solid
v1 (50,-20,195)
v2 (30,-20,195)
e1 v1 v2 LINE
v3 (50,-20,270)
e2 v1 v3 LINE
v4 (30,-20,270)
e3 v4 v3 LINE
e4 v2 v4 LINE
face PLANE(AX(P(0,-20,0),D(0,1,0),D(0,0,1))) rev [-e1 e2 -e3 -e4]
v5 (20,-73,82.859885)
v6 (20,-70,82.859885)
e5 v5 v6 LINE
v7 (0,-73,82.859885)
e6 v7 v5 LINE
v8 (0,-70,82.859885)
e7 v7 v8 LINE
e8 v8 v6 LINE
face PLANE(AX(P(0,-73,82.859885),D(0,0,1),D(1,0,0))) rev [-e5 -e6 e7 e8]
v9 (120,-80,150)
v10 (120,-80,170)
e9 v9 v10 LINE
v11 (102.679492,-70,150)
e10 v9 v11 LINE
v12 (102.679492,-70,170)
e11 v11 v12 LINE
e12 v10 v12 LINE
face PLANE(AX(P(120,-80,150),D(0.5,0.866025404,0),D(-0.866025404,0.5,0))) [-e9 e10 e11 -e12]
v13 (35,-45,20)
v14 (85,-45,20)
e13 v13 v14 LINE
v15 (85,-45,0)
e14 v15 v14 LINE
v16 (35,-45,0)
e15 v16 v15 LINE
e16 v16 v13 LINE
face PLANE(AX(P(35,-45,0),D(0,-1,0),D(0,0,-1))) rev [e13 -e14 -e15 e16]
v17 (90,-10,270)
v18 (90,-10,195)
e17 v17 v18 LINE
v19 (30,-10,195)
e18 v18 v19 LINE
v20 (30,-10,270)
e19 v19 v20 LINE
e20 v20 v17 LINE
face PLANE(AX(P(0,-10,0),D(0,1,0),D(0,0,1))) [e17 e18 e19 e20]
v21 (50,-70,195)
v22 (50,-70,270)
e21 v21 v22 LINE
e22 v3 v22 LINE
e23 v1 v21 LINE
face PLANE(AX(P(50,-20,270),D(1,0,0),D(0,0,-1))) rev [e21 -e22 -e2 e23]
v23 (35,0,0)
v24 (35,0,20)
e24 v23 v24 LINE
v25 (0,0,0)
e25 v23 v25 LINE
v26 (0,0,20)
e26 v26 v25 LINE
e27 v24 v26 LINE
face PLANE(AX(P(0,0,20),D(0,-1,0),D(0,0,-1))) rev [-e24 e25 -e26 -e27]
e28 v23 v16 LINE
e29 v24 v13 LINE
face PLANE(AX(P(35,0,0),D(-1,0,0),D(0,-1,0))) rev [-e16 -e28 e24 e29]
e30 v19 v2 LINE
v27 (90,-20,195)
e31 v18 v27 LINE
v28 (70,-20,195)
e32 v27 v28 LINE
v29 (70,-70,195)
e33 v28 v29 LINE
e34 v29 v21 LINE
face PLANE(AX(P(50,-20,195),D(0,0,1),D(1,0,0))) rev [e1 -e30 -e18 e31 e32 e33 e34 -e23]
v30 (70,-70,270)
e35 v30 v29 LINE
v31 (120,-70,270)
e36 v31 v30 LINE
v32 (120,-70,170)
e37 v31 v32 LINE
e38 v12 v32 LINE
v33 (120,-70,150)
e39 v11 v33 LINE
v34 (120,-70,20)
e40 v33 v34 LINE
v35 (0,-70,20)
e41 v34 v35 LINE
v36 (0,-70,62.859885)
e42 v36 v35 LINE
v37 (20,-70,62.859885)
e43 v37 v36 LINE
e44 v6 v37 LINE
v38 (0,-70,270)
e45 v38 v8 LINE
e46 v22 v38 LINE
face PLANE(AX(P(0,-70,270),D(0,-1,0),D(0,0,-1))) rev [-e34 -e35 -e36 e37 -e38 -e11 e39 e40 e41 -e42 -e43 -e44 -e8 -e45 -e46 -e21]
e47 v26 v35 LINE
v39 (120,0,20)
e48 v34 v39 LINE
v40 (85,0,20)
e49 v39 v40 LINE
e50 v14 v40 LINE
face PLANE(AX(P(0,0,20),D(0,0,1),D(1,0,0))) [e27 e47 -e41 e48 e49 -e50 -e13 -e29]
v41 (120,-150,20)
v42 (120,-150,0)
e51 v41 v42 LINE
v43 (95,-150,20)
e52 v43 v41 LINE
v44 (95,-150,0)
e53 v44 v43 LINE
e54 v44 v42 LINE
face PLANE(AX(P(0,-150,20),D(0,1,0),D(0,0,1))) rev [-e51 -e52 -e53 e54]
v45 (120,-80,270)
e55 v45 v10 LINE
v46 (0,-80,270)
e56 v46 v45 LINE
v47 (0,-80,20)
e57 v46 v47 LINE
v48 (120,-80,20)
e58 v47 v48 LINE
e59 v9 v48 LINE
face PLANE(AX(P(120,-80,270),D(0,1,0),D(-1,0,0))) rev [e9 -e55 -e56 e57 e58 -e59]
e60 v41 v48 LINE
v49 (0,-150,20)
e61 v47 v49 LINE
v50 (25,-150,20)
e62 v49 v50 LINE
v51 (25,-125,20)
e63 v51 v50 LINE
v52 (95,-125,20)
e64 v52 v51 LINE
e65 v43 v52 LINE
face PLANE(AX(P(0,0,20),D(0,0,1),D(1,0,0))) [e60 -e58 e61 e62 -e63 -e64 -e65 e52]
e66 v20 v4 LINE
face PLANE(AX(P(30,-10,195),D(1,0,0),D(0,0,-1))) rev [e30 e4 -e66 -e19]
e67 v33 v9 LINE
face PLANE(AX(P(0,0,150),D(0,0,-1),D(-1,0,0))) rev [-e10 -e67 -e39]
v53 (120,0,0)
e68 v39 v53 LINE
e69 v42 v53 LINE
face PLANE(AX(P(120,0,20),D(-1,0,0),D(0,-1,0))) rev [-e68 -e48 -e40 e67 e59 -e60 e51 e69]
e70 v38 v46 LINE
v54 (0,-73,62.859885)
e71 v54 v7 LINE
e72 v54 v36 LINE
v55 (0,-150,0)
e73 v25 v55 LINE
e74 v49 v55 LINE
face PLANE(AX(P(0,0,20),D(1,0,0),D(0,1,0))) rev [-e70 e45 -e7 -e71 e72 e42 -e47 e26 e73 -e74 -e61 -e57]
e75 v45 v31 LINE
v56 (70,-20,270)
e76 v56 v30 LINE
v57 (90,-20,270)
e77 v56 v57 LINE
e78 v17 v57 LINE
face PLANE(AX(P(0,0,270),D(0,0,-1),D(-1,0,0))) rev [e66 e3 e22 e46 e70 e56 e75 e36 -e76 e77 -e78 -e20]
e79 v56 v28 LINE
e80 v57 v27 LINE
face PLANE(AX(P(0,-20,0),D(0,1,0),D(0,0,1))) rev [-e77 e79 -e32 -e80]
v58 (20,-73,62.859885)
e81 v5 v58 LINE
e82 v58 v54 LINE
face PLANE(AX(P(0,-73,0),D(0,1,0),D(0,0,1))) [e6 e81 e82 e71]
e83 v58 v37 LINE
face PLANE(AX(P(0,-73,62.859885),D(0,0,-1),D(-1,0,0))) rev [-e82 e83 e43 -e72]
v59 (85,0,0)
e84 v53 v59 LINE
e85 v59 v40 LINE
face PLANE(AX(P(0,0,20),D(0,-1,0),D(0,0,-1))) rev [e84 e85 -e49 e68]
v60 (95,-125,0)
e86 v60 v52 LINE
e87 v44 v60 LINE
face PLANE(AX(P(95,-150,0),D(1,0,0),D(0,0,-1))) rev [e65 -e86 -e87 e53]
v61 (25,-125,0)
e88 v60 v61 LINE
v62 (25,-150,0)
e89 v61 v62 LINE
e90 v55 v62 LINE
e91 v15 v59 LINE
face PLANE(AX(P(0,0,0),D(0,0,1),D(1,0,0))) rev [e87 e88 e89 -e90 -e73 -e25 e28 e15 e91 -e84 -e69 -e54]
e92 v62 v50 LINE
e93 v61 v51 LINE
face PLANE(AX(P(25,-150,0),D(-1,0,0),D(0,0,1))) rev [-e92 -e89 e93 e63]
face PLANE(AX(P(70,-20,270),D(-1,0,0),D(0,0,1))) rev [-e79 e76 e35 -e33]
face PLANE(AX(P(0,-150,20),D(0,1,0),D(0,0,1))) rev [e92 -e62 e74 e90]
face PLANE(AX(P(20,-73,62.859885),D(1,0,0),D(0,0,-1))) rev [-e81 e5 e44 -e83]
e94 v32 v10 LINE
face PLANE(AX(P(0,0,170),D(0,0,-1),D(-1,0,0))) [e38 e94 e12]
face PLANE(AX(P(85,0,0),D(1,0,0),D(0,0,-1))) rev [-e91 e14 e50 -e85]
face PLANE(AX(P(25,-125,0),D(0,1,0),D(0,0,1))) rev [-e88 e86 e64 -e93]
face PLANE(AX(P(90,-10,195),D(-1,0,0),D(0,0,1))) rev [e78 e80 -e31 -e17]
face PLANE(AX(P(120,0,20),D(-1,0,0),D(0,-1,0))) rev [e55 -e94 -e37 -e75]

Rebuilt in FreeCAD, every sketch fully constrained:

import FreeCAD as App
import Part
import Sketcher
Q = App.Units.Quantity

doc = App.newDocument("Part")
body = doc.addObject("PartDesign::Body", "Body")

sketch1 = body.newObject("Sketcher::SketchObject", "Sketch")
sketch1.AttachmentSupport = (doc.getObject("XY_Plane"), [""])
sketch1.MapMode = "FlatFace"
sketch1.addGeometry(Part.LineSegment(App.Vector(0, 0, 0), App.Vector(0, -150, 0)), False)
sketch1.addGeometry(Part.LineSegment(App.Vector(0, -150, 0), App.Vector(120, -150, 0)), False)
sketch1.addGeometry(Part.LineSegment(App.Vector(120, -150, 0), App.Vector(120, 0, 0)), False)
sketch1.addGeometry(Part.LineSegment(App.Vector(120, 0, 0), App.Vector(0, 0, 0)), False)
sketch1.addConstraint(Sketcher.Constraint("Coincident", 0, 2, 1, 1))
sketch1.addConstraint(Sketcher.Constraint("Coincident", 1, 2, 2, 1))
sketch1.addConstraint(Sketcher.Constraint("Coincident", 2, 2, 3, 1))
sketch1.addConstraint(Sketcher.Constraint("Coincident", 3, 2, 0, 1))
sketch1.addConstraint(Sketcher.Constraint("Vertical", 0))
sketch1.addConstraint(Sketcher.Constraint("Horizontal", 1))
sketch1.addConstraint(Sketcher.Constraint("Vertical", 2))
sketch1.addConstraint(Sketcher.Constraint("Horizontal", 3))
sketch1.addConstraint(Sketcher.Constraint("Coincident", 3, 2, -1, 1))
sketch1.addConstraint(Sketcher.Constraint("DistanceX", 1, 1, 1, 2, Q("120 mm")))
sketch1.addConstraint(Sketcher.Constraint("DistanceY", 0, 2, 0, 1, Q("150 mm")))
pad1 = body.newObject("PartDesign::Pad", "Pad")
pad1.Profile = sketch1
pad1.Length = 20

sketch2 = body.newObject("Sketcher::SketchObject", "Sketch001")
sketch2.AttachmentSupport = (doc.getObject("XY_Plane"), [""])
sketch2.MapMode = "FlatFace"
sketch2.AttachmentOffset = App.Placement(App.Vector(0, 0, 20), App.Rotation())
sketch2.addGeometry(Part.LineSegment(App.Vector(0, -70, 0), App.Vector(0, -80, 0)), False)
sketch2.addGeometry(Part.LineSegment(App.Vector(0, -80, 0), App.Vector(120, -80, 0)), False)
sketch2.addGeometry(Part.LineSegment(App.Vector(120, -80, 0), App.Vector(120, -70, 0)), False)
sketch2.addGeometry(Part.LineSegment(App.Vector(120, -70, 0), App.Vector(0, -70, 0)), False)
sketch2.addConstraint(Sketcher.Constraint("Coincident", 0, 2, 1, 1))
sketch2.addConstraint(Sketcher.Constraint("Coincident", 1, 2, 2, 1))
sketch2.addConstraint(Sketcher.Constraint("Coincident", 2, 2, 3, 1))
sketch2.addConstraint(Sketcher.Constraint("Coincident", 3, 2, 0, 1))
sketch2.addConstraint(Sketcher.Constraint("Vertical", 0))
sketch2.addConstraint(Sketcher.Constraint("Horizontal", 1))
sketch2.addConstraint(Sketcher.Constraint("Vertical", 2))
sketch2.addConstraint(Sketcher.Constraint("Horizontal", 3))
sketch2.addConstraint(Sketcher.Constraint("PointOnObject", 0, 2, -2))
sketch2.addConstraint(Sketcher.Constraint("DistanceX", 1, 1, 1, 2, Q("120 mm")))
sketch2.addConstraint(Sketcher.Constraint("DistanceY", 0, 2, 0, 1, Q("10 mm")))
sketch2.addConstraint(Sketcher.Constraint("DistanceY", 0, 2, -1, 1, Q("80 mm")))
pad2 = body.newObject("PartDesign::Pad", "Pad001")
pad2.Profile = sketch2
pad2.Length = 250

sketch3 = body.newObject("Sketcher::SketchObject", "Sketch002")
sketch3.AttachmentSupport = (doc.getObject("XY_Plane"), [""])
sketch3.MapMode = "FlatFace"
sketch3.AttachmentOffset = App.Placement(App.Vector(0, 0, 20), App.Rotation())
sketch3.addGeometry(Part.LineSegment(App.Vector(35, 0, 0), App.Vector(35, -45, 0)), False)
sketch3.addGeometry(Part.LineSegment(App.Vector(35, -45, 0), App.Vector(85, -45, 0)), False)
sketch3.addGeometry(Part.LineSegment(App.Vector(85, -45, 0), App.Vector(85, 0, 0)), False)
sketch3.addGeometry(Part.LineSegment(App.Vector(85, 0, 0), App.Vector(35, 0, 0)), False)
sketch3.addConstraint(Sketcher.Constraint("Coincident", 0, 2, 1, 1))
sketch3.addConstraint(Sketcher.Constraint("Coincident", 1, 2, 2, 1))
sketch3.addConstraint(Sketcher.Constraint("Coincident", 2, 2, 3, 1))
sketch3.addConstraint(Sketcher.Constraint("Coincident", 3, 2, 0, 1))
sketch3.addConstraint(Sketcher.Constraint("Vertical", 0))
sketch3.addConstraint(Sketcher.Constraint("Horizontal", 1))
sketch3.addConstraint(Sketcher.Constraint("Vertical", 2))
sketch3.addConstraint(Sketcher.Constraint("Horizontal", 3))
sketch3.addConstraint(Sketcher.Constraint("PointOnObject", 2, 2, -1))
sketch3.addConstraint(Sketcher.Constraint("DistanceX", 1, 1, 1, 2, Q("50 mm")))
sketch3.addConstraint(Sketcher.Constraint("DistanceY", 0, 2, 0, 1, Q("45 mm")))
sketch3.addConstraint(Sketcher.Constraint("DistanceX", -1, 1, 0, 2, Q("35 mm")))
pocket1 = body.newObject("PartDesign::Pocket", "Pocket")
pocket1.Profile = sketch3
pocket1.Type = "ThroughAll"

sketch4 = body.newObject("Sketcher::SketchObject", "Sketch003")
sketch4.AttachmentSupport = (doc.getObject("XY_Plane"), [""])
sketch4.MapMode = "FlatFace"
sketch4.AttachmentOffset = App.Placement(App.Vector(0, 0, 20), App.Rotation())
sketch4.addGeometry(Part.LineSegment(App.Vector(25, -125, 0), App.Vector(25, -150, 0)), False)
sketch4.addGeometry(Part.LineSegment(App.Vector(25, -150, 0), App.Vector(95, -150, 0)), False)
sketch4.addGeometry(Part.LineSegment(App.Vector(95, -150, 0), App.Vector(95, -125, 0)), False)
sketch4.addGeometry(Part.LineSegment(App.Vector(95, -125, 0), App.Vector(25, -125, 0)), False)
sketch4.addConstraint(Sketcher.Constraint("Coincident", 0, 2, 1, 1))
sketch4.addConstraint(Sketcher.Constraint("Coincident", 1, 2, 2, 1))
sketch4.addConstraint(Sketcher.Constraint("Coincident", 2, 2, 3, 1))
sketch4.addConstraint(Sketcher.Constraint("Coincident", 3, 2, 0, 1))
sketch4.addConstraint(Sketcher.Constraint("Vertical", 0))
sketch4.addConstraint(Sketcher.Constraint("Horizontal", 1))
sketch4.addConstraint(Sketcher.Constraint("Vertical", 2))
sketch4.addConstraint(Sketcher.Constraint("Horizontal", 3))
sketch4.addConstraint(Sketcher.Constraint("DistanceX", 1, 1, 1, 2, Q("70 mm")))
sketch4.addConstraint(Sketcher.Constraint("DistanceY", 0, 2, 0, 1, Q("25 mm")))
sketch4.addConstraint(Sketcher.Constraint("DistanceX", -1, 1, 0, 2, Q("25 mm")))
sketch4.addConstraint(Sketcher.Constraint("DistanceY", 0, 2, -1, 1, Q("150 mm")))
pocket2 = body.newObject("PartDesign::Pocket", "Pocket001")
pocket2.Profile = sketch4
pocket2.Type = "ThroughAll"

sketch5 = body.newObject("Sketcher::SketchObject", "Sketch004")
sketch5.AttachmentSupport = (doc.getObject("XZ_Plane"), [""])
sketch5.MapMode = "FlatFace"
sketch5.AttachmentOffset = App.Placement(App.Vector(0, 0, 70), App.Rotation())
sketch5.addGeometry(Part.LineSegment(App.Vector(0, 62.859885, 0), App.Vector(0, 82.859885, 0)), False)
sketch5.addGeometry(Part.LineSegment(App.Vector(0, 82.859885, 0), App.Vector(20, 82.859885, 0)), False)
sketch5.addGeometry(Part.LineSegment(App.Vector(20, 82.859885, 0), App.Vector(20, 62.859885, 0)), False)
sketch5.addGeometry(Part.LineSegment(App.Vector(20, 62.859885, 0), App.Vector(0, 62.859885, 0)), False)
sketch5.addConstraint(Sketcher.Constraint("Coincident", 0, 2, 1, 1))
sketch5.addConstraint(Sketcher.Constraint("Coincident", 1, 2, 2, 1))
sketch5.addConstraint(Sketcher.Constraint("Coincident", 2, 2, 3, 1))
sketch5.addConstraint(Sketcher.Constraint("Coincident", 3, 2, 0, 1))
sketch5.addConstraint(Sketcher.Constraint("Vertical", 0))
sketch5.addConstraint(Sketcher.Constraint("Horizontal", 1))
sketch5.addConstraint(Sketcher.Constraint("Vertical", 2))
sketch5.addConstraint(Sketcher.Constraint("Horizontal", 3))
sketch5.addConstraint(Sketcher.Constraint("PointOnObject", 0, 2, -2))
sketch5.addConstraint(Sketcher.Constraint("Equal", 3, 0))
sketch5.addConstraint(Sketcher.Constraint("DistanceX", 1, 1, 1, 2, Q("20 mm")))
sketch5.addConstraint(Sketcher.Constraint("DistanceY", -1, 1, 0, 2, Q("82.859885 mm")))
pocket3 = body.newObject("PartDesign::Pocket", "Pocket002")
pocket3.Profile = sketch5
pocket3.Length = 3
pocket3.Reversed = True

sketch6 = body.newObject("Sketcher::SketchObject", "Sketch005")
sketch6.AttachmentSupport = (doc.getObject("XY_Plane"), [""])
sketch6.MapMode = "FlatFace"
sketch6.AttachmentOffset = App.Placement(App.Vector(0, 0, 170), App.Rotation())
sketch6.addGeometry(Part.LineSegment(App.Vector(102.679492, -70, 0), App.Vector(120, -80, 0)), False)
sketch6.addGeometry(Part.LineSegment(App.Vector(120, -80, 0), App.Vector(120, -70, 0)), False)
sketch6.addGeometry(Part.LineSegment(App.Vector(120, -70, 0), App.Vector(102.679492, -70, 0)), False)
sketch6.addConstraint(Sketcher.Constraint("Coincident", 0, 2, 1, 1))
sketch6.addConstraint(Sketcher.Constraint("Coincident", 1, 2, 2, 1))
sketch6.addConstraint(Sketcher.Constraint("Coincident", 2, 2, 0, 1))
sketch6.addConstraint(Sketcher.Constraint("Vertical", 1))
sketch6.addConstraint(Sketcher.Constraint("Horizontal", 2))
sketch6.addConstraint(Sketcher.Constraint("DistanceY", 1, 1, 1, 2, Q("10 mm")))
sketch6.addConstraint(Sketcher.Constraint("Angle", 0, Q("-30 deg")))
sketch6.addConstraint(Sketcher.Constraint("DistanceX", -1, 1, 0, 2, Q("120 mm")))
sketch6.addConstraint(Sketcher.Constraint("DistanceY", 0, 2, -1, 1, Q("80 mm")))
pocket4 = body.newObject("PartDesign::Pocket", "Pocket003")
pocket4.Profile = sketch6
pocket4.Length = 20

sketch7 = body.newObject("Sketcher::SketchObject", "Sketch006")
sketch7.AttachmentSupport = (doc.getObject("XZ_Plane"), [""])
sketch7.MapMode = "FlatFace"
sketch7.AttachmentOffset = App.Placement(App.Vector(0, 0, 70), App.Rotation())
sketch7.addGeometry(Part.LineSegment(App.Vector(50, 195, 0), App.Vector(50, 270, 0)), False)
sketch7.addGeometry(Part.LineSegment(App.Vector(50, 270, 0), App.Vector(70, 270, 0)), False)
sketch7.addGeometry(Part.LineSegment(App.Vector(70, 270, 0), App.Vector(70, 195, 0)), False)
sketch7.addGeometry(Part.LineSegment(App.Vector(70, 195, 0), App.Vector(50, 195, 0)), False)
sketch7.addConstraint(Sketcher.Constraint("Coincident", 0, 2, 1, 1))
sketch7.addConstraint(Sketcher.Constraint("Coincident", 1, 2, 2, 1))
sketch7.addConstraint(Sketcher.Constraint("Coincident", 2, 2, 3, 1))
sketch7.addConstraint(Sketcher.Constraint("Coincident", 3, 2, 0, 1))
sketch7.addConstraint(Sketcher.Constraint("Vertical", 0))
sketch7.addConstraint(Sketcher.Constraint("Horizontal", 1))
sketch7.addConstraint(Sketcher.Constraint("Vertical", 2))
sketch7.addConstraint(Sketcher.Constraint("Horizontal", 3))
sketch7.addConstraint(Sketcher.Constraint("DistanceX", 1, 1, 1, 2, Q("20 mm")))
sketch7.addConstraint(Sketcher.Constraint("DistanceY", 0, 1, 0, 2, Q("75 mm")))
sketch7.addConstraint(Sketcher.Constraint("DistanceX", -1, 1, 0, 2, Q("50 mm")))
sketch7.addConstraint(Sketcher.Constraint("DistanceY", -1, 1, 0, 2, Q("270 mm")))
pad3 = body.newObject("PartDesign::Pad", "Pad002")
pad3.Profile = sketch7
pad3.Length = 50
pad3.Reversed = True

sketch8 = body.newObject("Sketcher::SketchObject", "Sketch007")
sketch8.AttachmentSupport = (doc.getObject("XZ_Plane"), [""])
sketch8.MapMode = "FlatFace"
sketch8.AttachmentOffset = App.Placement(App.Vector(0, 0, 20), App.Rotation())
sketch8.addGeometry(Part.LineSegment(App.Vector(30, 195, 0), App.Vector(30, 270, 0)), False)
sketch8.addGeometry(Part.LineSegment(App.Vector(30, 270, 0), App.Vector(90, 270, 0)), False)
sketch8.addGeometry(Part.LineSegment(App.Vector(90, 270, 0), App.Vector(90, 195, 0)), False)
sketch8.addGeometry(Part.LineSegment(App.Vector(90, 195, 0), App.Vector(30, 195, 0)), False)
sketch8.addConstraint(Sketcher.Constraint("Coincident", 0, 2, 1, 1))
sketch8.addConstraint(Sketcher.Constraint("Coincident", 1, 2, 2, 1))
sketch8.addConstraint(Sketcher.Constraint("Coincident", 2, 2, 3, 1))
sketch8.addConstraint(Sketcher.Constraint("Coincident", 3, 2, 0, 1))
sketch8.addConstraint(Sketcher.Constraint("Vertical", 0))
sketch8.addConstraint(Sketcher.Constraint("Horizontal", 1))
sketch8.addConstraint(Sketcher.Constraint("Vertical", 2))
sketch8.addConstraint(Sketcher.Constraint("Horizontal", 3))
sketch8.addConstraint(Sketcher.Constraint("DistanceX", 1, 1, 1, 2, Q("60 mm")))
sketch8.addConstraint(Sketcher.Constraint("DistanceY", 0, 1, 0, 2, Q("75 mm")))
sketch8.addConstraint(Sketcher.Constraint("DistanceX", -1, 1, 0, 2, Q("30 mm")))
sketch8.addConstraint(Sketcher.Constraint("DistanceY", -1, 1, 0, 2, Q("270 mm")))
pad4 = body.newObject("PartDesign::Pad", "Pad003")
pad4.Profile = sketch8
pad4.Length = 10
pad4.Reversed = True

doc.recompute()
